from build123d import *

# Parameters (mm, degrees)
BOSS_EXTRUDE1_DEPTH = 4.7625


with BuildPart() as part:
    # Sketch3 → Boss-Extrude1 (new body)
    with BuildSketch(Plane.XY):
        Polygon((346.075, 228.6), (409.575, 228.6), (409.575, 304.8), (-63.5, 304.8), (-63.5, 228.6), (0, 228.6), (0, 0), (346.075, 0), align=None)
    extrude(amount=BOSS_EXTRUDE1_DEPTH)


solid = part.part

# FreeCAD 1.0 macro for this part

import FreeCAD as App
import Part
import Sketcher
from FreeCAD import Vector
Q = App.Units.Quantity


def add_polygon(sketch, points):
    """Adds a closed chain of lines whose ends are joined by coincident constraints."""
    first, n = sketch.GeometryCount, len(points)
    for a, b in zip(points, points[1:] + points[:1]):
        sketch.addGeometry(Part.LineSegment(App.Vector(*a, 0), App.Vector(*b, 0)), False)
    for i in range(n):
        sketch.addConstraint(Sketcher.Constraint("Coincident", first + i, 2, first + (i + 1) % n, 1))

doc = App.newDocument("Part")
body = doc.addObject("PartDesign::Body", "Body")

sketch1 = doc.addObject("Sketcher::SketchObject", "Sketch")
body.addObject(sketch1)
sketch1.AttachmentSupport = (doc.XY_Plane, [""])
sketch1.MapMode = "FlatFace"
add_polygon(sketch1, [(346, 229), (410, 229), (410, 305), (-64, 305), (-64, 229), (0, 229), (0, 0), (346, 0)])
sketch1.addConstraint(Sketcher.Constraint("Horizontal", 0))
sketch1.addConstraint(Sketcher.Constraint("Vertical", 1))
sketch1.addConstraint(Sketcher.Constraint("Horizontal", 2))
sketch1.addConstraint(Sketcher.Constraint("Vertical", 3))
sketch1.addConstraint(Sketcher.Constraint("Horizontal", 4))
sketch1.addConstraint(Sketcher.Constraint("Vertical", 5))
sketch1.addConstraint(Sketcher.Constraint("Horizontal", 6))
sketch1.addConstraint(Sketcher.Constraint("Vertical", 7))
sketch1.addConstraint(Sketcher.Constraint("Coincident", 5, 2, -1, 1))
sketch1.addConstraint(Sketcher.Constraint("Horizontal", 0, 2, 3, 2))
sketch1.addConstraint(Sketcher.Constraint("Equal", 0, 4))
sketch1.addConstraint(Sketcher.Constraint("DistanceY", 1, 1, 1, 2, Q("3 in")))
sketch1.addConstraint(Sketcher.Constraint("DistanceY", 5, 2, 5, 1, Q("9 in")))
sketch1.addConstraint(Sketcher.Constraint("DistanceX", 0, 1, 0, 2, Q("2.5 in")))
sketch1.addConstraint(Sketcher.Constraint("DistanceX", 2, 2, 2, 1, Q("18.625 in")))
pad1 = doc.addObject("PartDesign::Pad", "Pad")
body.addObject(pad1)
pad1.Profile = sketch1
pad1.Length = Q("0.1875 in")

doc.recompute()
